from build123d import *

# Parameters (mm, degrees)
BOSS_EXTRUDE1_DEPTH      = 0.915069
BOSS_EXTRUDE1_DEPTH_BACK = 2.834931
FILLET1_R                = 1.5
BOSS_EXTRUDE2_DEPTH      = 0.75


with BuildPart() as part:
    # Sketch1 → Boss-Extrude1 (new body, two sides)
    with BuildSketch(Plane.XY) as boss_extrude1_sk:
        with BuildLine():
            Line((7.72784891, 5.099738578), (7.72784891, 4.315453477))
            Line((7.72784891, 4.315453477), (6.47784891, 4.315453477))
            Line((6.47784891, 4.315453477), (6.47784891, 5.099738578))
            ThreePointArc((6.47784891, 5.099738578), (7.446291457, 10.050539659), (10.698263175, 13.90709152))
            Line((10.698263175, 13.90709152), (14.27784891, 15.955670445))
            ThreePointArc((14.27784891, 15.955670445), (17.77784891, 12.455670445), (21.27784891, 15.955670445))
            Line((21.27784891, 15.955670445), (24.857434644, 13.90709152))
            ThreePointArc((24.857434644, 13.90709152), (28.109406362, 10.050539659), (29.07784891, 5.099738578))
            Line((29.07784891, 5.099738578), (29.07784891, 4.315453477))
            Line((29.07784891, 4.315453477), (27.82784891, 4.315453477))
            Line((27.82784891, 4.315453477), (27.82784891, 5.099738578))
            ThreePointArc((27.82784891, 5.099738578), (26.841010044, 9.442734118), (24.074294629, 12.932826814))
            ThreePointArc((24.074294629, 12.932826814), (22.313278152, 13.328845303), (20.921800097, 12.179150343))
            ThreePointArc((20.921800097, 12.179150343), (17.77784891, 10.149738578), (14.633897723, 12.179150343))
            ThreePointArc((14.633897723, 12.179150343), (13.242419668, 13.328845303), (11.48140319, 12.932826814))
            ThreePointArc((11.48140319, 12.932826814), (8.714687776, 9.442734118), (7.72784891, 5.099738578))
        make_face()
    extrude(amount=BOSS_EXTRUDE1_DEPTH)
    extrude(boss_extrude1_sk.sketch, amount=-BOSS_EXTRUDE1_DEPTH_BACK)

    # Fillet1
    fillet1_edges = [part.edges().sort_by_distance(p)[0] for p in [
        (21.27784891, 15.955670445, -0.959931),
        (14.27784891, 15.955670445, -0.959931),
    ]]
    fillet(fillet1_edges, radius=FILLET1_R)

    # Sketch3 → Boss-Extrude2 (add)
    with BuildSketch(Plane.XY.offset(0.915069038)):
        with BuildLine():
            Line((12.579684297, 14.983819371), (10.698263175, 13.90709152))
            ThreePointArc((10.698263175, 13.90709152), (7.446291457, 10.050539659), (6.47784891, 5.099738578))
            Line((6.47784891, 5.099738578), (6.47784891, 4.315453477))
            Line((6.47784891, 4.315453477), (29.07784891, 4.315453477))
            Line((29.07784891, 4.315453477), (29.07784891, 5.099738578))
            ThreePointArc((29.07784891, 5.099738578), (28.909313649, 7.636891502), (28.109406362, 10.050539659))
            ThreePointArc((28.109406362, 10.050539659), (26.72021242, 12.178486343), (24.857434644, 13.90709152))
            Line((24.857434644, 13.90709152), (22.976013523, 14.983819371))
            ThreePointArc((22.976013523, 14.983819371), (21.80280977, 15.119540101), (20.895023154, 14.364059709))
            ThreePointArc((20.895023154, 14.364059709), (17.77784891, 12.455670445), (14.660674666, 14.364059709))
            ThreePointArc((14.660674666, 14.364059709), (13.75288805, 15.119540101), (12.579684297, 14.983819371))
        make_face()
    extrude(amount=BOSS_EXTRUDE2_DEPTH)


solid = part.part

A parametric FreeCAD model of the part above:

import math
import FreeCAD as App
import Part
import Sketcher

V = App.Vector


def edges_at(feature, points):
    """Names of the edges that pass closest to the given points."""
    edges = feature.Shape.Edges
    near = lambda p: min(range(len(edges)), key=lambda i: edges[i].distToShape(Part.Vertex(*p))[0])
    return sorted({f"Edge{near(p) + 1}" for p in points})

doc = App.newDocument("Part")
body = doc.addObject("PartDesign::Body", "Body")

# Sketch on XY plane
sketch1 = body.newObject("Sketcher::SketchObject", "Sketch")
sketch1.AttachmentSupport = (doc.getObject("XY_Plane"), [""])
sketch1.MapMode = "FlatFace"
sketch1.addGeometry([
    Part.LineSegment(V(7.727849, 4.315453, 0), V(7.727849, 5.099739, 0)),  # 0
    Part.ArcOfCircle(Part.Circle(V(17.777849, 5.099739, 0), V(0, 0, 1), 10.05), math.radians(128.793251), math.radians(180)),  # 1
    Part.ArcOfCircle(Part.Circle(V(12.765753, 11.335033, 0), V(0, 0, 1), 2.05), math.radians(24.315739), math.radians(128.793251)),  # 2
    Part.ArcOfCircle(Part.Circle(V(17.777849, 13.599739, 0), V(0, 0, 1), 3.45), math.radians(-155.684261), math.radians(-24.315739)),  # 3
    Part.ArcOfCircle(Part.Circle(V(22.789945, 11.335033, 0), V(0, 0, 1), 2.05), math.radians(51.206749), math.radians(155.684261)),  # 4
    Part.ArcOfCircle(Part.Circle(V(17.777849, 5.099739, 0), V(0, 0, 1), 10.05), math.radians(0), math.radians(51.206749)),  # 5
    Part.LineSegment(V(27.827849, 5.099739, 0), V(27.827849, 4.315453, 0)),  # 6
    Part.LineSegment(V(27.827849, 4.315453, 0), V(29.077849, 4.315453, 0)),  # 7
    Part.LineSegment(V(29.077849, 4.315453, 0), V(29.077849, 5.099739, 0)),  # 8
    Part.ArcOfCircle(Part.Circle(V(19.046245, 5.707544, 0), V(0, 0, 1), 10.05), math.radians(-3.467259), math.radians(54.674008)),  # 9
    Part.LineSegment(V(24.857435, 13.907092, 0), V(21.277849, 15.95567, 0)),  # 10
    Part.ArcOfCircle(Part.Circle(V(17.777849, 15.95567, 0), V(0, 0, 1), 3.5), math.radians(180), math.radians(360)),  # 11
    Part.LineSegment(V(14.277849, 15.95567, 0), V(10.698263, 13.907092, 0)),  # 12
    Part.ArcOfCircle(Part.Circle(V(16.509453, 5.707544, 0), V(0, 0, 1), 10.05), math.radians(125.325992), math.radians(183.467259)),  # 13
    Part.LineSegment(V(6.477849, 5.099739, 0), V(6.477849, 4.315453, 0)),  # 14
    Part.LineSegment(V(6.477849, 4.315453, 0), V(7.727849, 4.315453, 0)),  # 15
], False)
sketch1.addConstraint([
    Sketcher.Constraint("Tangent", 0, 2, 1, 2),
    Sketcher.Constraint("Tangent", 1, 1, 2, 2),
    Sketcher.Constraint("Tangent", 2, 1, 3, 1),
    Sketcher.Constraint("Tangent", 3, 2, 4, 2),
    Sketcher.Constraint("Tangent", 4, 1, 5, 2),
    Sketcher.Constraint("Tangent", 5, 1, 6, 1),
    Sketcher.Constraint("Coincident", 6, 2, 7, 1),
    Sketcher.Constraint("Coincident", 7, 2, 8, 1),
    Sketcher.Constraint("Coincident", 8, 2, 9, 1),
    Sketcher.Constraint("Coincident", 9, 2, 10, 1),
    Sketcher.Constraint("Coincident", 10, 2, 11, 2),
    Sketcher.Constraint("Coincident", 11, 1, 12, 1),
    Sketcher.Constraint("Coincident", 12, 2, 13, 1),
    Sketcher.Constraint("Coincident", 13, 2, 14, 1),
    Sketcher.Constraint("Coincident", 14, 2, 15, 1),
    Sketcher.Constraint("Coincident", 15, 2, 0, 1),
    Sketcher.Constraint("Vertical", 0),
    Sketcher.Constraint("Vertical", 6),
    Sketcher.Constraint("Horizontal", 7),
    Sketcher.Constraint("Vertical", 8),
    Sketcher.Constraint("Vertical", 14),
    Sketcher.Constraint("Horizontal", 15),
    Sketcher.Constraint("Coincident", 5, 3, 1, 3),
    Sketcher.Constraint("Equal", 2, 4),
    Sketcher.Constraint("Equal", 1, 5),
    Sketcher.Constraint("Equal", 5, 9),
    Sketcher.Constraint("Equal", 9, 13),
    Sketcher.Constraint("Horizontal", 2, 3, 4, 3),
    Sketcher.Constraint("Horizontal", 9, 3, 13, 3),
    Sketcher.Constraint("Horizontal", 5, 1, 8, 2),
    Sketcher.Constraint("Horizontal", 11, 3, 10, 2),
    Sketcher.Constraint("Horizontal", 10, 2, 11, 1),
    Sketcher.Constraint("Horizontal", 9, 2, 12, 2),
    Sketcher.Constraint("Horizontal", 8, 2, 13, 2),
    Sketcher.Constraint("Horizontal", 7, 2, 14, 2),
    Sketcher.Constraint("Vertical", 5, 3, 11, 3),
    Sketcher.Constraint("Equal", 7, 15),
    Sketcher.Constraint("Radius", 11, 3.5),
    Sketcher.Constraint("Radius", 1, 10.05),
    Sketcher.Constraint("Radius", 2, 2.05),
    Sketcher.Constraint("Radius", 3, 3.45),
    Sketcher.Constraint("DistanceX", 7, 1, 7, 2, 1.25),
    Sketcher.Constraint("DistanceY", 1, 3, 3, 3, 8.5),
    Sketcher.Constraint("DistanceX", -1, 1, 3, 2, 20.9218),
    Sketcher.Constraint("DistanceX", 9, 3, 4, 3, 3.7437),
    Sketcher.Constraint("Distance", 10, 4.124331),
    Sketcher.Constraint("DistanceY", 0, 1, 0, 2, 0.784285),
    Sketcher.Constraint("DistanceY", -1, 1, 1, 3, 5.099739),
    Sketcher.Constraint("DistanceY", -1, 1, 11, 3, 15.95567),
])
pad1 = body.newObject("PartDesign::Pad", "Pad")
pad1.Profile = sketch1
pad1.Type = "TwoLengths"
pad1.Length = 0.915069
pad1.Length2 = 2.834931
doc.recompute()

fillet = body.newObject("PartDesign::Fillet", "Fillet")
fillet.Base = (pad1, edges_at(pad1, [(21.278, 15.956, -0.96), (14.278, 15.956, -0.96)]))
fillet.Radius = 1.5

# Sketch on XY plane
sketch2 = body.newObject("Sketcher::SketchObject", "Sketch001")
sketch2.AttachmentSupport = (doc.getObject("XY_Plane"), [""])
sketch2.MapMode = "FlatFace"
sketch2.AttachmentOffset = App.Placement(V(0, 0, 0.915069), App.Rotation())
sketch2.addGeometry([
    Part.LineSegment(V(12.579684, 14.983819, 0), V(10.698263, 13.907092, 0)),  # 0
    Part.ArcOfCircle(Part.Circle(V(16.509453, 5.707544, 0), V(0, 0, 1), 10.05), math.radians(125.325992), math.radians(183.467259)),  # 1
    Part.LineSegment(V(6.477849, 5.099739, 0), V(6.477849, 4.315453, 0)),  # 2
    Part.LineSegment(V(6.477849, 4.315453, 0), V(29.077849, 4.315453, 0)),  # 3
    Part.LineSegment(V(29.077849, 4.315453, 0), V(29.077849, 5.099739, 0)),  # 4
    Part.ArcOfCircle(Part.Circle(V(19.046245, 5.707544, 0), V(0, 0, 1), 10.05), math.radians(-3.467259), math.radians(25.603374)),  # 5
    Part.ArcOfCircle(Part.Circle(V(18.750518, 5.458177, 0), V(0, 0, 1), 10.424902), math.radians(26.13697), math.radians(54.140413)),  # 6
    Part.LineSegment(V(24.857435, 13.907092, 0), V(22.976014, 14.983819, 0)),  # 7
    Part.ArcOfCircle(Part.Circle(V(22.230955, 13.681941, 0), V(0, 0, 1), 1.5), math.radians(60.217711), math.radians(152.951412)),  # 8
    Part.ArcOfCircle(Part.Circle(V(17.777849, 15.95567, 0), V(0, 0, 1), 3.5), math.radians(-152.951412), math.radians(-27.048588)),  # 9
    Part.ArcOfCircle(Part.Circle(V(13.324743, 13.681941, 0), V(0, 0, 1), 1.5), math.radians(27.048588), math.radians(119.782289)),  # 10
], False)
sketch2.addConstraint([
    Sketcher.Constraint("Coincident", 0, 2, 1, 1),
    Sketcher.Constraint("Coincident", 1, 2, 2, 1),
    Sketcher.Constraint("Coincident", 2, 2, 3, 1),
    Sketcher.Constraint("Coincident", 3, 2, 4, 1),
    Sketcher.Constraint("Coincident", 4, 2, 5, 1),
    Sketcher.Constraint("Coincident", 5, 2, 6, 1),
    Sketcher.Constraint("Coincident", 6, 2, 7, 1),
    Sketcher.Constraint("Tangent", 7, 2, 8, 1),
    Sketcher.Constraint("Tangent", 8, 2, 9, 2),
    Sketcher.Constraint("Tangent", 9, 1, 10, 1),
    Sketcher.Constraint("Tangent", 10, 2, 0, 1),
    Sketcher.Constraint("Vertical", 2),
    Sketcher.Constraint("Horizontal", 3),
    Sketcher.Constraint("Vertical", 4),
    Sketcher.Constraint("Equal", 1, 5),
    Sketcher.Constraint("Equal", 8, 10),
    Sketcher.Constraint("Horizontal", 1, 3, 5, 3),
    Sketcher.Constraint("Horizontal", 8, 3, 10, 3),
    Sketcher.Constraint("Horizontal", 1, 2, 4, 2),
    Sketcher.Constraint("Horizontal", 0, 2, 6, 2),
    Sketcher.Constraint("Horizontal", 7, 2, 10, 2),
    Sketcher.Constraint("Radius", 8, 1.5),
    Sketcher.Constraint("Radius", 9, 3.5),
    Sketcher.Constraint("Radius", 1, 10.05),
    Sketcher.Constraint("DistanceX", 3, 1, 3, 2, 22.6),
    Sketcher.Constraint("DistanceX", 9, 3, 3, 2, 11.3),
    Sketcher.Constraint("Radius", 6, 10.424902),
    Sketcher.Constraint("DistanceY", 4, 2, 5, 2, 4.950801),
    Sketcher.Constraint("DistanceY", 5, 2, 8, 3, 3.631401),
    Sketcher.Constraint("Distance", 0, 2.167738),
    Sketcher.Constraint("DistanceY", 2, 2, 2, 1, 0.784285),
    Sketcher.Constraint("DistanceY", -1, 1, 8, 3, 13.681941),
    Sketcher.Constraint("DistanceX", -1, 1, 9, 3, 17.777849),
    Sketcher.Constraint("DistanceY", -1, 1, 9, 3, 15.95567),
    Sketcher.Constraint("DistanceY", -1, 1, 0, 2, 13.907092),
])
pad2 = body.newObject("PartDesign::Pad", "Pad001")
pad2.Profile = sketch2
pad2.Length = 0.75

doc.recompute()
